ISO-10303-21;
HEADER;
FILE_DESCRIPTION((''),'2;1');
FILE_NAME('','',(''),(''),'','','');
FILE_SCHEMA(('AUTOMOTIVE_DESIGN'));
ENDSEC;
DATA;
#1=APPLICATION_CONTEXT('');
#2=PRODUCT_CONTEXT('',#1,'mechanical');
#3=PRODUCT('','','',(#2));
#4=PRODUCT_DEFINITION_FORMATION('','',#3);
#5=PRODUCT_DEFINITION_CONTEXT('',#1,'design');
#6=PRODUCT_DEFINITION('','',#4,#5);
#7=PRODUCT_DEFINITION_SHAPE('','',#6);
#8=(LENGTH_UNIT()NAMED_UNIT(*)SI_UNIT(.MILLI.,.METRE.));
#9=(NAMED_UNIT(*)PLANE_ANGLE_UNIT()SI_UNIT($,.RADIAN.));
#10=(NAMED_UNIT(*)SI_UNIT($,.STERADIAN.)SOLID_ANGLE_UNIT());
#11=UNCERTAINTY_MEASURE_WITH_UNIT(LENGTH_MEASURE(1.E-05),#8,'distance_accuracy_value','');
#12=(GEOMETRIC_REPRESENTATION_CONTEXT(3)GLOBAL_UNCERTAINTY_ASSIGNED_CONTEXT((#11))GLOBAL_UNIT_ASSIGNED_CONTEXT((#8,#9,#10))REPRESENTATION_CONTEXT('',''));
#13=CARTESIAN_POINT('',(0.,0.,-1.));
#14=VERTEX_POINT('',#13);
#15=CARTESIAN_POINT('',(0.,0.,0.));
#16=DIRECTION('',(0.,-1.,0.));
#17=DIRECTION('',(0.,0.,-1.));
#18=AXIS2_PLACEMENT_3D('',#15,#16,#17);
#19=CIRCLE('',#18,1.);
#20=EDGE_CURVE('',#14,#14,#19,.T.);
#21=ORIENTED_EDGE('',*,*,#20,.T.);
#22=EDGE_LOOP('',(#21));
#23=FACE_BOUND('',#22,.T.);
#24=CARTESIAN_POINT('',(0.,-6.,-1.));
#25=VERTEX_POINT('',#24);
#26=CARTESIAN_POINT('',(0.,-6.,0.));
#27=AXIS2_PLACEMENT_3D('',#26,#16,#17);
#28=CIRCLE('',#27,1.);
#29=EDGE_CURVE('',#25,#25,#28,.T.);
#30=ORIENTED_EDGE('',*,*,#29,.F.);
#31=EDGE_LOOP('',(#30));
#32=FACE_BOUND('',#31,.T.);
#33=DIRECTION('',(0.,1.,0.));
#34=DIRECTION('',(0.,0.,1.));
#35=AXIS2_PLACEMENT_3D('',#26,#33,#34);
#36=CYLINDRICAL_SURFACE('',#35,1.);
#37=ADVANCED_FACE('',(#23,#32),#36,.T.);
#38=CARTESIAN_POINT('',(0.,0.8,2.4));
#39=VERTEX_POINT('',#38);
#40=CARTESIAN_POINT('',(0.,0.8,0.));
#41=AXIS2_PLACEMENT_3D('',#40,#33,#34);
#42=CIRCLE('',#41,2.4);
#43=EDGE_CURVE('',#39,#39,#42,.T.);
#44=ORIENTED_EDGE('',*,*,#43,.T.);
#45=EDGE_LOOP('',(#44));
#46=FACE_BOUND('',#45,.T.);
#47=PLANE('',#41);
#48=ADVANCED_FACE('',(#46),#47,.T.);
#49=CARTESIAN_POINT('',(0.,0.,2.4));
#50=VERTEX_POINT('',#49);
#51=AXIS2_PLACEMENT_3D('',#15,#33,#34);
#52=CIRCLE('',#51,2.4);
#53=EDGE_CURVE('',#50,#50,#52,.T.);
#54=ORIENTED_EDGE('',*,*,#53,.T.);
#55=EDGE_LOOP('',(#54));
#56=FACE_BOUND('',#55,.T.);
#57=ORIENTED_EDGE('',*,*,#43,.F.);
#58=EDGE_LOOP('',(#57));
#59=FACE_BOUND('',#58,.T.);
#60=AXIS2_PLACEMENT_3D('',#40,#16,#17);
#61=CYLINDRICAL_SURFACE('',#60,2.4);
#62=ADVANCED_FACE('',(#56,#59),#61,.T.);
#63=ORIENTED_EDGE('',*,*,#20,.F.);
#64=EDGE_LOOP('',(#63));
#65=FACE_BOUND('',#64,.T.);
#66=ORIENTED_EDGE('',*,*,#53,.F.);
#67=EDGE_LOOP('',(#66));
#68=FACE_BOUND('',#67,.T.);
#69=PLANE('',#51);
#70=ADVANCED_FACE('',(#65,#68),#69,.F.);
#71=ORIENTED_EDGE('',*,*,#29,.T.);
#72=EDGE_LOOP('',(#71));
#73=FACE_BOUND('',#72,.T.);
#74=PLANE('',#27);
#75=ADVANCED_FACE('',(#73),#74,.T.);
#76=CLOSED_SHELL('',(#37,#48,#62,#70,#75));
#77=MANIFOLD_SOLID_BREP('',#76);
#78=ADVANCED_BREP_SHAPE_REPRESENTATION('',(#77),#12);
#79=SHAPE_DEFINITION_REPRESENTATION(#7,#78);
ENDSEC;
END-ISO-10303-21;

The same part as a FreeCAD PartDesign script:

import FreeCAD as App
import Part
import Sketcher

doc = App.newDocument("Part")
body = doc.addObject("PartDesign::Body", "Body")

# Sketch on XZ plane
sketch1 = body.newObject("Sketcher::SketchObject", "Sketch")
sketch1.AttachmentSupport = (doc.getObject("XZ_Plane"), [""])
sketch1.MapMode = "FlatFace"
sketch1.addGeometry(Part.Circle(App.Vector(0, 0, 0), App.Vector(0, 0, 1), 2.4), False)
sketch1.addConstraint(Sketcher.Constraint("Coincident", 0, 3, -1, 1))
sketch1.addConstraint(Sketcher.Constraint("Diameter", 0, 4.8))
pad1 = body.newObject("PartDesign::Pad", "Pad")
pad1.Profile = sketch1
pad1.Length = 0.8
pad1.Reversed = True

# Sketch on XZ plane
sketch2 = body.newObject("Sketcher::SketchObject", "Sketch001")
sketch2.AttachmentSupport = (doc.getObject("XZ_Plane"), [""])
sketch2.MapMode = "FlatFace"
sketch2.addGeometry(Part.Circle(App.Vector(0, 0, 0), App.Vector(0, 0, 1), 1), False)
sketch2.addConstraint(Sketcher.Constraint("Coincident", 0, 3, -1, 1))
sketch2.addConstraint(Sketcher.Constraint("Diameter", 0, 2.0))
pad2 = body.newObject("PartDesign::Pad", "Pad001")
pad2.Profile = sketch2
pad2.Length = 6

doc.recompute()
